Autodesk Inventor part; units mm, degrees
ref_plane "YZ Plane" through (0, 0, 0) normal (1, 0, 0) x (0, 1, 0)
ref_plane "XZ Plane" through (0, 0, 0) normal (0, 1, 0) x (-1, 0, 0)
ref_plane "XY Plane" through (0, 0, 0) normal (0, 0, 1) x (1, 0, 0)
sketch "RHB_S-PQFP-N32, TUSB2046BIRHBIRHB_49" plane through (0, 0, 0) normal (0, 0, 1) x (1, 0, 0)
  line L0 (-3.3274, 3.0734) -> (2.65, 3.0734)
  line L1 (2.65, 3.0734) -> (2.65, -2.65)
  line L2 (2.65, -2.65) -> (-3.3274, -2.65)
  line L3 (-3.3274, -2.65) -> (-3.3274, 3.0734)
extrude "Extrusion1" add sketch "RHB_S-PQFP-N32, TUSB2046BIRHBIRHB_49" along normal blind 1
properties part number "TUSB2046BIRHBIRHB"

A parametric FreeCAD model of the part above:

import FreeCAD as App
import Part
import Sketcher

V = App.Vector
Q = App.Units.Quantity

doc = App.newDocument("Part")
body = doc.addObject("PartDesign::Body", "Body")

# Sketch on XY plane
sketch1 = body.newObject("Sketcher::SketchObject", "Sketch")
sketch1.AttachmentSupport = (doc.getObject("XY_Plane"), [""])
sketch1.MapMode = "FlatFace"
sketch1.addGeometry(Part.LineSegment(V(2.65, 3.0734, 0), V(-3.3274, 3.0734, 0)), False)
sketch1.addGeometry(Part.LineSegment(V(-3.3274, 3.0734, 0), V(-3.3274, -2.65, 0)), False)
sketch1.addGeometry(Part.LineSegment(V(-3.3274, -2.65, 0), V(2.65, -2.65, 0)), False)
sketch1.addGeometry(Part.LineSegment(V(2.65, -2.65, 0), V(2.65, 3.0734, 0)), False)
sketch1.addConstraint(Sketcher.Constraint("Coincident", 0, 2, 1, 1))
sketch1.addConstraint(Sketcher.Constraint("Coincident", 1, 2, 2, 1))
sketch1.addConstraint(Sketcher.Constraint("Coincident", 2, 2, 3, 1))
sketch1.addConstraint(Sketcher.Constraint("Coincident", 3, 2, 0, 1))
sketch1.addConstraint(Sketcher.Constraint("Horizontal", 0))
sketch1.addConstraint(Sketcher.Constraint("Vertical", 1))
sketch1.addConstraint(Sketcher.Constraint("Horizontal", 2))
sketch1.addConstraint(Sketcher.Constraint("Vertical", 3))
sketch1.addConstraint(Sketcher.Constraint("DistanceY", 1, 2, -1, 1, Q("2.65 mm")))
sketch1.addConstraint(Sketcher.Constraint("DistanceX", -1, 1, 2, 2, Q("2.65 mm")))
sketch1.addConstraint(Sketcher.Constraint("DistanceX", 0, 2, 0, 1, Q("5.9774 mm")))
sketch1.addConstraint(Sketcher.Constraint("DistanceY", 1, 2, 1, 1, Q("5.7234 mm")))
pad1 = body.newObject("PartDesign::Pad", "Pad")
pad1.Profile = sketch1
pad1.Length = 1

doc.recompute()
